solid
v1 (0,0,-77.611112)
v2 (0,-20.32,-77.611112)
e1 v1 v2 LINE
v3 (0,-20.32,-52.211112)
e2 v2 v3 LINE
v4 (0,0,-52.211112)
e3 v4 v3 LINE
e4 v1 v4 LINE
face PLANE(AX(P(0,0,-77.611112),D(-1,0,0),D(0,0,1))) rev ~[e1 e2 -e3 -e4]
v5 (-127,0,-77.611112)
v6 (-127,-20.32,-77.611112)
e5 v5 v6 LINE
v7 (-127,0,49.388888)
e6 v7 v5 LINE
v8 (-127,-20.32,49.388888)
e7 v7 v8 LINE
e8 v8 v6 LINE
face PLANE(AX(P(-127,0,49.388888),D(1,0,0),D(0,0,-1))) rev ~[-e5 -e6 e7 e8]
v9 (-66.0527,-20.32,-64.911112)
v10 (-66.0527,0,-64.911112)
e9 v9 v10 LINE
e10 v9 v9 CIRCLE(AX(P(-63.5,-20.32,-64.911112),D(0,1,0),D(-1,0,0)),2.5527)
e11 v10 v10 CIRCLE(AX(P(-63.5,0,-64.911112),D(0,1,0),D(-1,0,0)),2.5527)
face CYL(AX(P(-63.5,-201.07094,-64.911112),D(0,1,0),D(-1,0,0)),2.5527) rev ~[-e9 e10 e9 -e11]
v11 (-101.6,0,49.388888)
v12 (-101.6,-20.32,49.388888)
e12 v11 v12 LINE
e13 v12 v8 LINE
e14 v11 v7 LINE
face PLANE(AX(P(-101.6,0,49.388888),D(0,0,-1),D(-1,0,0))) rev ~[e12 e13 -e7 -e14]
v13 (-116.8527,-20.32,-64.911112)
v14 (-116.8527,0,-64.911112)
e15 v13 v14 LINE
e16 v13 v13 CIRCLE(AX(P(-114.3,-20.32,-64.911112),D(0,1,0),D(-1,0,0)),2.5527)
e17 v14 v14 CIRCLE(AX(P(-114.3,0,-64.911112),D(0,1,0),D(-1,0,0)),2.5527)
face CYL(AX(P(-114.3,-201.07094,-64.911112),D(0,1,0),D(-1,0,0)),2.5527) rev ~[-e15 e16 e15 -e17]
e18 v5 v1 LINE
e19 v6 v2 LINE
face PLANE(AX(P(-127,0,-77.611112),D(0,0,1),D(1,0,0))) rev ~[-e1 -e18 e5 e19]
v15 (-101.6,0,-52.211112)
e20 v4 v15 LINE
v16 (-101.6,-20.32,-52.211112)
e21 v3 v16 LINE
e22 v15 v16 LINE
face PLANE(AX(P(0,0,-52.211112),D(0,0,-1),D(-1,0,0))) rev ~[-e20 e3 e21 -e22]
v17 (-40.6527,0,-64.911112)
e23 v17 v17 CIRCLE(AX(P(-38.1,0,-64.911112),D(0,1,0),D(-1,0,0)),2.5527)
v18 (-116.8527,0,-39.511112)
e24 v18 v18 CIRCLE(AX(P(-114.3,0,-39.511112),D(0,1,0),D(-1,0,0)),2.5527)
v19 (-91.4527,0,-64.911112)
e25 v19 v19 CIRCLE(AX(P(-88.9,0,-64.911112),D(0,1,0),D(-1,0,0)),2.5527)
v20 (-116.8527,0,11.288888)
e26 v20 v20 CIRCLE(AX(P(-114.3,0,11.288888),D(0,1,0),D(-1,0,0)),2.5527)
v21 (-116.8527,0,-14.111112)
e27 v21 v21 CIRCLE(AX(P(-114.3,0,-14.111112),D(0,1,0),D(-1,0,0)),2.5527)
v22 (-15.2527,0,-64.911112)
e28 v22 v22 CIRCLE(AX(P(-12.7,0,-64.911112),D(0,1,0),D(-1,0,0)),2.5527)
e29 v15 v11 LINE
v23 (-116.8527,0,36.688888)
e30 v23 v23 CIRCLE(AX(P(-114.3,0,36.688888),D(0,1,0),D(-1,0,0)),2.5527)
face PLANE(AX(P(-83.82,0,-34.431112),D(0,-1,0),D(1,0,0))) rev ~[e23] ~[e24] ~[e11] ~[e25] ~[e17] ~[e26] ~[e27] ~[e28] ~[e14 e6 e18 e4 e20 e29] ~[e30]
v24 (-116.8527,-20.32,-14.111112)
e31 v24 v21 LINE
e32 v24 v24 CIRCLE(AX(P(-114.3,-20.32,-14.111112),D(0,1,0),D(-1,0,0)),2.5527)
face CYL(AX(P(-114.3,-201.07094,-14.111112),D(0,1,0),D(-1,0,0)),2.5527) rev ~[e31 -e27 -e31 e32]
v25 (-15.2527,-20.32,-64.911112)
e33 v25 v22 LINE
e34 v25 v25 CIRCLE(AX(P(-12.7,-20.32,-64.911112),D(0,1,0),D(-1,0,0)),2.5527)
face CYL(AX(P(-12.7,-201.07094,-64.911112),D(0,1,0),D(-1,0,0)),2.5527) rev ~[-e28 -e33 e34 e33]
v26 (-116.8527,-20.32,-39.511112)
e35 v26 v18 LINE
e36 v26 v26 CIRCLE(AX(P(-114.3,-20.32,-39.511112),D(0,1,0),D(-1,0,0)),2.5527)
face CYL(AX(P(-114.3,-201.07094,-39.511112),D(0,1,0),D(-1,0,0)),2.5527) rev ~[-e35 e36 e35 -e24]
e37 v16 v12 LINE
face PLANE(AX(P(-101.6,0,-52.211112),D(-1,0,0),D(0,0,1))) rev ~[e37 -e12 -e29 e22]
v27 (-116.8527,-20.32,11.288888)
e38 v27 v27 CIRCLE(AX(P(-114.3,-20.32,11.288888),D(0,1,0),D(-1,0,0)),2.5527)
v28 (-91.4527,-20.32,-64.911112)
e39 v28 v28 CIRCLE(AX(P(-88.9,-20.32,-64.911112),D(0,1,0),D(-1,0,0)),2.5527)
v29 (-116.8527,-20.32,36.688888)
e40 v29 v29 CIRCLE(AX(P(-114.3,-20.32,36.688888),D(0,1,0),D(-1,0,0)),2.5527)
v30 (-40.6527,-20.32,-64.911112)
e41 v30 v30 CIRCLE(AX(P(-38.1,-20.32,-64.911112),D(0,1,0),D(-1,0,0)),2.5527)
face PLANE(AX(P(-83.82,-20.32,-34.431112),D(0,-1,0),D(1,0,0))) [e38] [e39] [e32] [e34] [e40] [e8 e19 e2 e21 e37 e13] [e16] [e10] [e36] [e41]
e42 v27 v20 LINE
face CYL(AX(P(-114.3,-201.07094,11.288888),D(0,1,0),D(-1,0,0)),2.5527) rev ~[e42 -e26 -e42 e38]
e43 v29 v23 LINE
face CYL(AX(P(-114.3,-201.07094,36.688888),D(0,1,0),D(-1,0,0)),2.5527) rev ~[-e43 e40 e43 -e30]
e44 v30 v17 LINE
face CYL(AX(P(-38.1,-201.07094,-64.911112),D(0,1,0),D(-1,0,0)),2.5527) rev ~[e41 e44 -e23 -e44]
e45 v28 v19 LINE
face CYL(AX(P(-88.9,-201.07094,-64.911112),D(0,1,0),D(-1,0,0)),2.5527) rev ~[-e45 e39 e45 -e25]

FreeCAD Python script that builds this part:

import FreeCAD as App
import Part
import Sketcher
from FreeCAD import Vector
Q = App.Units.Quantity

doc = App.newDocument("Part")
params = doc.addObject("Spreadsheet::Sheet", "Params")
for row, (alias, value) in enumerate([
    ("sketch1_width", "1 in"),
    ("sketch1_width2", "5 in"),
    ("pad1_length", "0.8 in"),
    ("sketch2_diameter", "0.201 in"),
    ("hole_diameter", "0.201 in"),
], start=1):
    params.set(f"A{row}", alias)
    params.set(f"B{row}", "=" + value)
    params.setAlias(f"B{row}", alias)

body = doc.addObject("PartDesign::Body", "Body")

# Sketch on XZ plane
sketch1 = body.newObject("Sketcher::SketchObject", "Sketch")
sketch1.AttachmentSupport = (doc.getObject("XZ_Plane"), [""])
sketch1.MapMode = "FlatFace"
sketch1.addGeometry(Part.LineSegment(Vector(-102, 49, 0), Vector(-127, 49, 0)), False)
sketch1.addGeometry(Part.LineSegment(Vector(-127, 49, 0), Vector(-127, -78, 0)), False)
sketch1.addGeometry(Part.LineSegment(Vector(-127, -78, 0), Vector(0, -78, 0)), False)
sketch1.addGeometry(Part.LineSegment(Vector(0, -78, 0), Vector(0, -52, 0)), False)
sketch1.addGeometry(Part.LineSegment(Vector(0, -52, 0), Vector(-102, -52, 0)), False)
sketch1.addGeometry(Part.LineSegment(Vector(-102, -52, 0), Vector(-102, 49, 0)), False)
sketch1.addConstraint(Sketcher.Constraint("Coincident", 0, 2, 1, 1))
sketch1.addConstraint(Sketcher.Constraint("Coincident", 1, 2, 2, 1))
sketch1.addConstraint(Sketcher.Constraint("Coincident", 2, 2, 3, 1))
sketch1.addConstraint(Sketcher.Constraint("Coincident", 3, 2, 4, 1))
sketch1.addConstraint(Sketcher.Constraint("Coincident", 4, 2, 5, 1))
sketch1.addConstraint(Sketcher.Constraint("Coincident", 5, 2, 0, 1))
sketch1.addConstraint(Sketcher.Constraint("Horizontal", 0))
sketch1.addConstraint(Sketcher.Constraint("Vertical", 1))
sketch1.addConstraint(Sketcher.Constraint("Horizontal", 2))
sketch1.addConstraint(Sketcher.Constraint("Vertical", 3))
sketch1.addConstraint(Sketcher.Constraint("Horizontal", 4))
sketch1.addConstraint(Sketcher.Constraint("Vertical", 5))
sketch1.addConstraint(Sketcher.Constraint("PointOnObject", 2, 2, -2))
sketch1.addConstraint(Sketcher.Constraint("Equal", 2, 1))
sketch1.addConstraint(Sketcher.Constraint("Equal", 0, 3))
sketch1.addConstraint(Sketcher.Constraint("DistanceX", 0, 2, 0, 1, Q("1 in")))
sketch1.addConstraint(Sketcher.Constraint("DistanceX", 2, 1, 2, 2, Q("5 in")))
sketch1.addConstraint(Sketcher.Constraint("DistanceY", -1, 1, 0, 2, 49.388888))
sketch1.setExpression("Constraints[15]", "Params.sketch1_width")
sketch1.setExpression("Constraints[16]", "Params.sketch1_width2")
pad1 = body.newObject("PartDesign::Pad", "Pad")
pad1.Profile = sketch1
pad1.setExpression("Length", "Params.pad1_length")

# Sketch on XZ plane
sketch2 = body.newObject("Sketcher::SketchObject", "Sketch001")
sketch2.AttachmentSupport = (doc.getObject("XZ_Plane"), [""])
sketch2.MapMode = "FlatFace"
sketch2.AttachmentOffset = App.Placement(Vector(0, 0, 0.8 * 25.4), App.Rotation())
sketch2.addGeometry(Part.Circle(Vector(-12.7, -64.9, 0), Vector(0, 0, 1), 2.6), False)
sketch2.addGeometry(Part.Circle(Vector(-114.3, -64.9, 0), Vector(0, 0, 1), 2.6), False)
sketch2.addGeometry(Part.Circle(Vector(-88.9, -64.9, 0), Vector(0, 0, 1), 2.6), False)
sketch2.addGeometry(Part.Circle(Vector(-63.5, -64.9, 0), Vector(0, 0, 1), 2.6), False)
sketch2.addGeometry(Part.Circle(Vector(-38.1, -64.9, 0), Vector(0, 0, 1), 2.6), False)
sketch2.addGeometry(Part.Circle(Vector(-114.3, 11.3, 0), Vector(0, 0, 1), 2.6), False)
sketch2.addGeometry(Part.Circle(Vector(-114.3, -14.1, 0), Vector(0, 0, 1), 2.6), False)
sketch2.addGeometry(Part.Circle(Vector(-114.3, -39.5, 0), Vector(0, 0, 1), 2.6), False)
sketch2.addGeometry(Part.Circle(Vector(-114.3, 36.7, 0), Vector(0, 0, 1), 2.6), False)
sketch2.addConstraint(Sketcher.Constraint("Equal", 0, 1))
sketch2.addConstraint(Sketcher.Constraint("Equal", 1, 2))
sketch2.addConstraint(Sketcher.Constraint("Equal", 2, 3))
sketch2.addConstraint(Sketcher.Constraint("Equal", 3, 4))
sketch2.addConstraint(Sketcher.Constraint("Equal", 4, 5))
sketch2.addConstraint(Sketcher.Constraint("Equal", 5, 6))
sketch2.addConstraint(Sketcher.Constraint("Equal", 6, 7))
sketch2.addConstraint(Sketcher.Constraint("Equal", 7, 8))
sketch2.addConstraint(Sketcher.Constraint("Horizontal", 0, 3, 1, 3))
sketch2.addConstraint(Sketcher.Constraint("Horizontal", 1, 3, 2, 3))
sketch2.addConstraint(Sketcher.Constraint("Horizontal", 2, 3, 3, 3))
sketch2.addConstraint(Sketcher.Constraint("Horizontal", 3, 3, 4, 3))
sketch2.addConstraint(Sketcher.Constraint("Vertical", 1, 3, 5, 3))
sketch2.addConstraint(Sketcher.Constraint("Vertical", 5, 3, 6, 3))
sketch2.addConstraint(Sketcher.Constraint("Vertical", 6, 3, 7, 3))
sketch2.addConstraint(Sketcher.Constraint("Vertical", 7, 3, 8, 3))
sketch2.addConstraint(Sketcher.Constraint("Diameter", 0, Q("0.201 in")))
sketch2.addConstraint(Sketcher.Constraint("DistanceX", 1, 3, 0, 3, Q("4 in")))
sketch2.addConstraint(Sketcher.Constraint("DistanceX", 1, 3, 2, 3, Q("1 in")))
sketch2.addConstraint(Sketcher.Constraint("DistanceX", 2, 3, 3, 3, Q("1 in")))
sketch2.addConstraint(Sketcher.Constraint("DistanceX", 3, 3, 4, 3, Q("1 in")))
sketch2.addConstraint(Sketcher.Constraint("DistanceY", 1, 3, 5, 3, Q("3 in")))
sketch2.addConstraint(Sketcher.Constraint("DistanceY", 6, 3, 5, 3, Q("1 in")))
sketch2.addConstraint(Sketcher.Constraint("DistanceY", 7, 3, 6, 3, Q("1 in")))
sketch2.addConstraint(Sketcher.Constraint("DistanceY", 5, 3, 8, 3, Q("1 in")))
sketch2.addConstraint(Sketcher.Constraint("DistanceX", 0, 3, -1, 1, Q("0.5 in")))
sketch2.addConstraint(Sketcher.Constraint("DistanceY", 7, 3, -1, 1, 39.511112))
sketch2.setExpression("Constraints[16]", "Params.sketch2_diameter")
doc.recompute()
hole = body.newObject("PartDesign::Hole", "Hole")
hole.Profile = sketch2
hole.ThreadType = "None"
hole.setExpression("Diameter", "Params.hole_diameter")
hole.DepthType = "ThroughAll"

doc.recompute()
